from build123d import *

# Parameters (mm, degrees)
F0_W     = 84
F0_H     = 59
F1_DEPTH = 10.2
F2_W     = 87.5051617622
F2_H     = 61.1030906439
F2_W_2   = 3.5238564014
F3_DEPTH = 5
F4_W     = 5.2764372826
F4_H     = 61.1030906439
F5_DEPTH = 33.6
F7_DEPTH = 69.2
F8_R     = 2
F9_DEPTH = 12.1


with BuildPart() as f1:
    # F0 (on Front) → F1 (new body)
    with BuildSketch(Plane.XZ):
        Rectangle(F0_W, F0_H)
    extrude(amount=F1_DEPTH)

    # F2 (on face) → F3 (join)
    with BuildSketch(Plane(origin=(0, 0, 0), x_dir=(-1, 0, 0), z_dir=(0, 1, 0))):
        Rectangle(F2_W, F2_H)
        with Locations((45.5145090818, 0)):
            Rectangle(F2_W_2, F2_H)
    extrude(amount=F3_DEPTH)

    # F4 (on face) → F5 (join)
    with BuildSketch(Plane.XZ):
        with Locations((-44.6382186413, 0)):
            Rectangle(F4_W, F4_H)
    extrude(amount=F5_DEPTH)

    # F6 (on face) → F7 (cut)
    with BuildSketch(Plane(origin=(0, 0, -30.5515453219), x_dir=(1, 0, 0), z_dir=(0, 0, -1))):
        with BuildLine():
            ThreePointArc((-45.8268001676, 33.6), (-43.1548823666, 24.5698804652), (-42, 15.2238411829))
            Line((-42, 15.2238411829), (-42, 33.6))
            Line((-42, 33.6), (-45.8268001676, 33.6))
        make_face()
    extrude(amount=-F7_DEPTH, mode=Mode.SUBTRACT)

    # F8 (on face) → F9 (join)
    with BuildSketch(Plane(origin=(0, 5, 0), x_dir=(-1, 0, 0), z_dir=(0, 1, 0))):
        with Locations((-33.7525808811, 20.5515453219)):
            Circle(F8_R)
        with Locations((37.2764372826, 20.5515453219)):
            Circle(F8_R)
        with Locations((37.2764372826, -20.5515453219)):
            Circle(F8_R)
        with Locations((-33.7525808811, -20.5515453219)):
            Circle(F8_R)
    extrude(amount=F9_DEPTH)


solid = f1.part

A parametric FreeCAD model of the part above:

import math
import FreeCAD as App
import Part
import Sketcher
from FreeCAD import Vector


def add_polygon(sketch, points):
    """Adds a closed chain of lines whose ends are joined by coincident constraints."""
    first, n = sketch.GeometryCount, len(points)
    for a, b in zip(points, points[1:] + points[:1]):
        sketch.addGeometry(Part.LineSegment(App.Vector(*a, 0), App.Vector(*b, 0)), False)
    for i in range(n):
        sketch.addConstraint(Sketcher.Constraint("Coincident", first + i, 2, first + (i + 1) % n, 1))

doc = App.newDocument("Part")
body = doc.addObject("PartDesign::Body", "Body")

sketch1 = doc.addObject("Sketcher::SketchObject", "Sketch")
body.addObject(sketch1)
sketch1.AttachmentSupport = (doc.XZ_Plane, [""])
sketch1.MapMode = "FlatFace"
add_polygon(sketch1, [(-42, 30), (-42, -30), (42, -30), (42, 30)])
sketch1.addConstraint([
    Sketcher.Constraint("Vertical", 0),
    Sketcher.Constraint("Horizontal", 1),
    Sketcher.Constraint("Vertical", 2),
    Sketcher.Constraint("Horizontal", 3),
    Sketcher.Constraint("Symmetric", 0, 2, 2, 2, -1, 1),
    Sketcher.Constraint("DistanceX", 1, 1, 1, 2, 84.0),
    Sketcher.Constraint("DistanceY", 0, 2, 0, 1, 59.0),
])
pad1 = doc.addObject("PartDesign::Pad", "Pad")
body.addObject(pad1)
pad1.Profile = sketch1
pad1.Length = 10.2

sketch2 = doc.addObject("Sketcher::SketchObject", "Sketch001")
body.addObject(sketch2)
sketch2.AttachmentSupport = (doc.XZ_Plane, [""])
sketch2.MapMode = "FlatFace"
add_polygon(sketch2, [(44, 31), (44, -31), (-47, -31), (-47, 31)])
sketch2.addConstraint([
    Sketcher.Constraint("Vertical", 0),
    Sketcher.Constraint("Horizontal", 1),
    Sketcher.Constraint("Vertical", 2),
    Sketcher.Constraint("Horizontal", 3),
    Sketcher.Constraint("DistanceX", 1, 2, 1, 1, 91.029018),
    Sketcher.Constraint("DistanceY", 0, 2, 0, 1, 61.103091),
    Sketcher.Constraint("DistanceX", -1, 1, 0, 2, 43.752581),
    Sketcher.Constraint("DistanceY", 0, 2, -1, 1, 30.551545),
])
pad2 = doc.addObject("PartDesign::Pad", "Pad001")
body.addObject(pad2)
pad2.Profile = sketch2
pad2.Length = 5
pad2.Reversed = True

sketch3 = doc.addObject("Sketcher::SketchObject", "Sketch002")
body.addObject(sketch3)
sketch3.AttachmentSupport = (doc.XZ_Plane, [""])
sketch3.MapMode = "FlatFace"
add_polygon(sketch3, [(-47, 31), (-47, -31), (-42, -31), (-42, 31)])
sketch3.addConstraint([
    Sketcher.Constraint("Vertical", 0),
    Sketcher.Constraint("Horizontal", 1),
    Sketcher.Constraint("Vertical", 2),
    Sketcher.Constraint("Horizontal", 3),
    Sketcher.Constraint("DistanceX", 1, 2, -1, 1, 42.0),
    Sketcher.Constraint("DistanceY", 0, 2, 0, 1, 61.103091),
    Sketcher.Constraint("DistanceX", 1, 1, 1, 2, 5.276437),
    Sketcher.Constraint("DistanceY", 0, 2, -1, 1, 30.551545),
])
pad3 = doc.addObject("PartDesign::Pad", "Pad002")
body.addObject(pad3)
pad3.Profile = sketch3
pad3.Length = 33.6

sketch4 = doc.addObject("Sketcher::SketchObject", "Sketch003")
body.addObject(sketch4)
sketch4.AttachmentSupport = (doc.XY_Plane, [""])
sketch4.MapMode = "FlatFace"
sketch4.AttachmentOffset = App.Placement(Vector(0, 0, -30.551545), App.Rotation())
sketch4.addGeometry([
    Part.ArcOfCircle(Part.Circle(Vector(-99.2, -12.9, 0), Vector(0, 0, 1), 57.2), math.radians(-21.2), math.radians(-2.32)),
    Part.LineSegment(Vector(-42, -15.2, 0), Vector(-42, -33.6, 0)),
    Part.LineSegment(Vector(-42, -33.6, 0), Vector(-45.8, -33.6, 0)),
], False)
sketch4.addConstraint([
    Sketcher.Constraint("Coincident", 0, 2, 1, 1),
    Sketcher.Constraint("Coincident", 1, 2, 2, 1),
    Sketcher.Constraint("Coincident", 2, 2, 0, 1),
    Sketcher.Constraint("Vertical", 1),
    Sketcher.Constraint("Horizontal", 2),
    Sketcher.Constraint("DistanceX", 0, 2, -1, 1, 42.0),
    Sketcher.Constraint("DistanceY", 1, 2, -1, 1, 33.6),
    Sketcher.Constraint("Radius", 0, 57.229789),
    Sketcher.Constraint("DistanceX", 2, 2, 2, 1, 3.8268),
    Sketcher.Constraint("DistanceY", 1, 2, 1, 1, 18.376159),
])
pocket1 = doc.addObject("PartDesign::Pocket", "Pocket")
body.addObject(pocket1)
pocket1.Profile = sketch4
pocket1.Length = 69.2
pocket1.Reversed = True

sketch5 = doc.addObject("Sketcher::SketchObject", "Sketch004")
body.addObject(sketch5)
sketch5.AttachmentSupport = (doc.XZ_Plane, [""])
sketch5.MapMode = "FlatFace"
sketch5.AttachmentOffset = App.Placement(Vector(0, 0, -5), App.Rotation())
sketch5.addGeometry([
    Part.Circle(Vector(33.8, 20.6, 0), Vector(0, 0, 1), 2),
    Part.Circle(Vector(-37.3, 20.6, 0), Vector(0, 0, 1), 2),
    Part.Circle(Vector(-37.3, -20.6, 0), Vector(0, 0, 1), 2),
    Part.Circle(Vector(33.8, -20.6, 0), Vector(0, 0, 1), 2),
], False)
sketch5.addConstraint([
    Sketcher.Constraint("Equal", 0, 1),
    Sketcher.Constraint("Equal", 1, 2),
    Sketcher.Constraint("Equal", 2, 3),
    Sketcher.Constraint("Symmetric", 1, 3, 2, 3, -1),
    Sketcher.Constraint("Symmetric", 0, 3, 3, 3, -1),
    Sketcher.Constraint("Horizontal", 0, 3, 1, 3),
    Sketcher.Constraint("Diameter", 0, 4.0),
    Sketcher.Constraint("DistanceX", -1, 1, 0, 3, 33.752581),
    Sketcher.Constraint("DistanceX", 1, 3, 0, 3, 71.029018),
    Sketcher.Constraint("DistanceY", 2, 3, 1, 3, 41.103091),
])
pad4 = doc.addObject("PartDesign::Pad", "Pad003")
body.addObject(pad4)
pad4.Profile = sketch5
pad4.Length = 12.1
pad4.Reversed = True

doc.recompute()
